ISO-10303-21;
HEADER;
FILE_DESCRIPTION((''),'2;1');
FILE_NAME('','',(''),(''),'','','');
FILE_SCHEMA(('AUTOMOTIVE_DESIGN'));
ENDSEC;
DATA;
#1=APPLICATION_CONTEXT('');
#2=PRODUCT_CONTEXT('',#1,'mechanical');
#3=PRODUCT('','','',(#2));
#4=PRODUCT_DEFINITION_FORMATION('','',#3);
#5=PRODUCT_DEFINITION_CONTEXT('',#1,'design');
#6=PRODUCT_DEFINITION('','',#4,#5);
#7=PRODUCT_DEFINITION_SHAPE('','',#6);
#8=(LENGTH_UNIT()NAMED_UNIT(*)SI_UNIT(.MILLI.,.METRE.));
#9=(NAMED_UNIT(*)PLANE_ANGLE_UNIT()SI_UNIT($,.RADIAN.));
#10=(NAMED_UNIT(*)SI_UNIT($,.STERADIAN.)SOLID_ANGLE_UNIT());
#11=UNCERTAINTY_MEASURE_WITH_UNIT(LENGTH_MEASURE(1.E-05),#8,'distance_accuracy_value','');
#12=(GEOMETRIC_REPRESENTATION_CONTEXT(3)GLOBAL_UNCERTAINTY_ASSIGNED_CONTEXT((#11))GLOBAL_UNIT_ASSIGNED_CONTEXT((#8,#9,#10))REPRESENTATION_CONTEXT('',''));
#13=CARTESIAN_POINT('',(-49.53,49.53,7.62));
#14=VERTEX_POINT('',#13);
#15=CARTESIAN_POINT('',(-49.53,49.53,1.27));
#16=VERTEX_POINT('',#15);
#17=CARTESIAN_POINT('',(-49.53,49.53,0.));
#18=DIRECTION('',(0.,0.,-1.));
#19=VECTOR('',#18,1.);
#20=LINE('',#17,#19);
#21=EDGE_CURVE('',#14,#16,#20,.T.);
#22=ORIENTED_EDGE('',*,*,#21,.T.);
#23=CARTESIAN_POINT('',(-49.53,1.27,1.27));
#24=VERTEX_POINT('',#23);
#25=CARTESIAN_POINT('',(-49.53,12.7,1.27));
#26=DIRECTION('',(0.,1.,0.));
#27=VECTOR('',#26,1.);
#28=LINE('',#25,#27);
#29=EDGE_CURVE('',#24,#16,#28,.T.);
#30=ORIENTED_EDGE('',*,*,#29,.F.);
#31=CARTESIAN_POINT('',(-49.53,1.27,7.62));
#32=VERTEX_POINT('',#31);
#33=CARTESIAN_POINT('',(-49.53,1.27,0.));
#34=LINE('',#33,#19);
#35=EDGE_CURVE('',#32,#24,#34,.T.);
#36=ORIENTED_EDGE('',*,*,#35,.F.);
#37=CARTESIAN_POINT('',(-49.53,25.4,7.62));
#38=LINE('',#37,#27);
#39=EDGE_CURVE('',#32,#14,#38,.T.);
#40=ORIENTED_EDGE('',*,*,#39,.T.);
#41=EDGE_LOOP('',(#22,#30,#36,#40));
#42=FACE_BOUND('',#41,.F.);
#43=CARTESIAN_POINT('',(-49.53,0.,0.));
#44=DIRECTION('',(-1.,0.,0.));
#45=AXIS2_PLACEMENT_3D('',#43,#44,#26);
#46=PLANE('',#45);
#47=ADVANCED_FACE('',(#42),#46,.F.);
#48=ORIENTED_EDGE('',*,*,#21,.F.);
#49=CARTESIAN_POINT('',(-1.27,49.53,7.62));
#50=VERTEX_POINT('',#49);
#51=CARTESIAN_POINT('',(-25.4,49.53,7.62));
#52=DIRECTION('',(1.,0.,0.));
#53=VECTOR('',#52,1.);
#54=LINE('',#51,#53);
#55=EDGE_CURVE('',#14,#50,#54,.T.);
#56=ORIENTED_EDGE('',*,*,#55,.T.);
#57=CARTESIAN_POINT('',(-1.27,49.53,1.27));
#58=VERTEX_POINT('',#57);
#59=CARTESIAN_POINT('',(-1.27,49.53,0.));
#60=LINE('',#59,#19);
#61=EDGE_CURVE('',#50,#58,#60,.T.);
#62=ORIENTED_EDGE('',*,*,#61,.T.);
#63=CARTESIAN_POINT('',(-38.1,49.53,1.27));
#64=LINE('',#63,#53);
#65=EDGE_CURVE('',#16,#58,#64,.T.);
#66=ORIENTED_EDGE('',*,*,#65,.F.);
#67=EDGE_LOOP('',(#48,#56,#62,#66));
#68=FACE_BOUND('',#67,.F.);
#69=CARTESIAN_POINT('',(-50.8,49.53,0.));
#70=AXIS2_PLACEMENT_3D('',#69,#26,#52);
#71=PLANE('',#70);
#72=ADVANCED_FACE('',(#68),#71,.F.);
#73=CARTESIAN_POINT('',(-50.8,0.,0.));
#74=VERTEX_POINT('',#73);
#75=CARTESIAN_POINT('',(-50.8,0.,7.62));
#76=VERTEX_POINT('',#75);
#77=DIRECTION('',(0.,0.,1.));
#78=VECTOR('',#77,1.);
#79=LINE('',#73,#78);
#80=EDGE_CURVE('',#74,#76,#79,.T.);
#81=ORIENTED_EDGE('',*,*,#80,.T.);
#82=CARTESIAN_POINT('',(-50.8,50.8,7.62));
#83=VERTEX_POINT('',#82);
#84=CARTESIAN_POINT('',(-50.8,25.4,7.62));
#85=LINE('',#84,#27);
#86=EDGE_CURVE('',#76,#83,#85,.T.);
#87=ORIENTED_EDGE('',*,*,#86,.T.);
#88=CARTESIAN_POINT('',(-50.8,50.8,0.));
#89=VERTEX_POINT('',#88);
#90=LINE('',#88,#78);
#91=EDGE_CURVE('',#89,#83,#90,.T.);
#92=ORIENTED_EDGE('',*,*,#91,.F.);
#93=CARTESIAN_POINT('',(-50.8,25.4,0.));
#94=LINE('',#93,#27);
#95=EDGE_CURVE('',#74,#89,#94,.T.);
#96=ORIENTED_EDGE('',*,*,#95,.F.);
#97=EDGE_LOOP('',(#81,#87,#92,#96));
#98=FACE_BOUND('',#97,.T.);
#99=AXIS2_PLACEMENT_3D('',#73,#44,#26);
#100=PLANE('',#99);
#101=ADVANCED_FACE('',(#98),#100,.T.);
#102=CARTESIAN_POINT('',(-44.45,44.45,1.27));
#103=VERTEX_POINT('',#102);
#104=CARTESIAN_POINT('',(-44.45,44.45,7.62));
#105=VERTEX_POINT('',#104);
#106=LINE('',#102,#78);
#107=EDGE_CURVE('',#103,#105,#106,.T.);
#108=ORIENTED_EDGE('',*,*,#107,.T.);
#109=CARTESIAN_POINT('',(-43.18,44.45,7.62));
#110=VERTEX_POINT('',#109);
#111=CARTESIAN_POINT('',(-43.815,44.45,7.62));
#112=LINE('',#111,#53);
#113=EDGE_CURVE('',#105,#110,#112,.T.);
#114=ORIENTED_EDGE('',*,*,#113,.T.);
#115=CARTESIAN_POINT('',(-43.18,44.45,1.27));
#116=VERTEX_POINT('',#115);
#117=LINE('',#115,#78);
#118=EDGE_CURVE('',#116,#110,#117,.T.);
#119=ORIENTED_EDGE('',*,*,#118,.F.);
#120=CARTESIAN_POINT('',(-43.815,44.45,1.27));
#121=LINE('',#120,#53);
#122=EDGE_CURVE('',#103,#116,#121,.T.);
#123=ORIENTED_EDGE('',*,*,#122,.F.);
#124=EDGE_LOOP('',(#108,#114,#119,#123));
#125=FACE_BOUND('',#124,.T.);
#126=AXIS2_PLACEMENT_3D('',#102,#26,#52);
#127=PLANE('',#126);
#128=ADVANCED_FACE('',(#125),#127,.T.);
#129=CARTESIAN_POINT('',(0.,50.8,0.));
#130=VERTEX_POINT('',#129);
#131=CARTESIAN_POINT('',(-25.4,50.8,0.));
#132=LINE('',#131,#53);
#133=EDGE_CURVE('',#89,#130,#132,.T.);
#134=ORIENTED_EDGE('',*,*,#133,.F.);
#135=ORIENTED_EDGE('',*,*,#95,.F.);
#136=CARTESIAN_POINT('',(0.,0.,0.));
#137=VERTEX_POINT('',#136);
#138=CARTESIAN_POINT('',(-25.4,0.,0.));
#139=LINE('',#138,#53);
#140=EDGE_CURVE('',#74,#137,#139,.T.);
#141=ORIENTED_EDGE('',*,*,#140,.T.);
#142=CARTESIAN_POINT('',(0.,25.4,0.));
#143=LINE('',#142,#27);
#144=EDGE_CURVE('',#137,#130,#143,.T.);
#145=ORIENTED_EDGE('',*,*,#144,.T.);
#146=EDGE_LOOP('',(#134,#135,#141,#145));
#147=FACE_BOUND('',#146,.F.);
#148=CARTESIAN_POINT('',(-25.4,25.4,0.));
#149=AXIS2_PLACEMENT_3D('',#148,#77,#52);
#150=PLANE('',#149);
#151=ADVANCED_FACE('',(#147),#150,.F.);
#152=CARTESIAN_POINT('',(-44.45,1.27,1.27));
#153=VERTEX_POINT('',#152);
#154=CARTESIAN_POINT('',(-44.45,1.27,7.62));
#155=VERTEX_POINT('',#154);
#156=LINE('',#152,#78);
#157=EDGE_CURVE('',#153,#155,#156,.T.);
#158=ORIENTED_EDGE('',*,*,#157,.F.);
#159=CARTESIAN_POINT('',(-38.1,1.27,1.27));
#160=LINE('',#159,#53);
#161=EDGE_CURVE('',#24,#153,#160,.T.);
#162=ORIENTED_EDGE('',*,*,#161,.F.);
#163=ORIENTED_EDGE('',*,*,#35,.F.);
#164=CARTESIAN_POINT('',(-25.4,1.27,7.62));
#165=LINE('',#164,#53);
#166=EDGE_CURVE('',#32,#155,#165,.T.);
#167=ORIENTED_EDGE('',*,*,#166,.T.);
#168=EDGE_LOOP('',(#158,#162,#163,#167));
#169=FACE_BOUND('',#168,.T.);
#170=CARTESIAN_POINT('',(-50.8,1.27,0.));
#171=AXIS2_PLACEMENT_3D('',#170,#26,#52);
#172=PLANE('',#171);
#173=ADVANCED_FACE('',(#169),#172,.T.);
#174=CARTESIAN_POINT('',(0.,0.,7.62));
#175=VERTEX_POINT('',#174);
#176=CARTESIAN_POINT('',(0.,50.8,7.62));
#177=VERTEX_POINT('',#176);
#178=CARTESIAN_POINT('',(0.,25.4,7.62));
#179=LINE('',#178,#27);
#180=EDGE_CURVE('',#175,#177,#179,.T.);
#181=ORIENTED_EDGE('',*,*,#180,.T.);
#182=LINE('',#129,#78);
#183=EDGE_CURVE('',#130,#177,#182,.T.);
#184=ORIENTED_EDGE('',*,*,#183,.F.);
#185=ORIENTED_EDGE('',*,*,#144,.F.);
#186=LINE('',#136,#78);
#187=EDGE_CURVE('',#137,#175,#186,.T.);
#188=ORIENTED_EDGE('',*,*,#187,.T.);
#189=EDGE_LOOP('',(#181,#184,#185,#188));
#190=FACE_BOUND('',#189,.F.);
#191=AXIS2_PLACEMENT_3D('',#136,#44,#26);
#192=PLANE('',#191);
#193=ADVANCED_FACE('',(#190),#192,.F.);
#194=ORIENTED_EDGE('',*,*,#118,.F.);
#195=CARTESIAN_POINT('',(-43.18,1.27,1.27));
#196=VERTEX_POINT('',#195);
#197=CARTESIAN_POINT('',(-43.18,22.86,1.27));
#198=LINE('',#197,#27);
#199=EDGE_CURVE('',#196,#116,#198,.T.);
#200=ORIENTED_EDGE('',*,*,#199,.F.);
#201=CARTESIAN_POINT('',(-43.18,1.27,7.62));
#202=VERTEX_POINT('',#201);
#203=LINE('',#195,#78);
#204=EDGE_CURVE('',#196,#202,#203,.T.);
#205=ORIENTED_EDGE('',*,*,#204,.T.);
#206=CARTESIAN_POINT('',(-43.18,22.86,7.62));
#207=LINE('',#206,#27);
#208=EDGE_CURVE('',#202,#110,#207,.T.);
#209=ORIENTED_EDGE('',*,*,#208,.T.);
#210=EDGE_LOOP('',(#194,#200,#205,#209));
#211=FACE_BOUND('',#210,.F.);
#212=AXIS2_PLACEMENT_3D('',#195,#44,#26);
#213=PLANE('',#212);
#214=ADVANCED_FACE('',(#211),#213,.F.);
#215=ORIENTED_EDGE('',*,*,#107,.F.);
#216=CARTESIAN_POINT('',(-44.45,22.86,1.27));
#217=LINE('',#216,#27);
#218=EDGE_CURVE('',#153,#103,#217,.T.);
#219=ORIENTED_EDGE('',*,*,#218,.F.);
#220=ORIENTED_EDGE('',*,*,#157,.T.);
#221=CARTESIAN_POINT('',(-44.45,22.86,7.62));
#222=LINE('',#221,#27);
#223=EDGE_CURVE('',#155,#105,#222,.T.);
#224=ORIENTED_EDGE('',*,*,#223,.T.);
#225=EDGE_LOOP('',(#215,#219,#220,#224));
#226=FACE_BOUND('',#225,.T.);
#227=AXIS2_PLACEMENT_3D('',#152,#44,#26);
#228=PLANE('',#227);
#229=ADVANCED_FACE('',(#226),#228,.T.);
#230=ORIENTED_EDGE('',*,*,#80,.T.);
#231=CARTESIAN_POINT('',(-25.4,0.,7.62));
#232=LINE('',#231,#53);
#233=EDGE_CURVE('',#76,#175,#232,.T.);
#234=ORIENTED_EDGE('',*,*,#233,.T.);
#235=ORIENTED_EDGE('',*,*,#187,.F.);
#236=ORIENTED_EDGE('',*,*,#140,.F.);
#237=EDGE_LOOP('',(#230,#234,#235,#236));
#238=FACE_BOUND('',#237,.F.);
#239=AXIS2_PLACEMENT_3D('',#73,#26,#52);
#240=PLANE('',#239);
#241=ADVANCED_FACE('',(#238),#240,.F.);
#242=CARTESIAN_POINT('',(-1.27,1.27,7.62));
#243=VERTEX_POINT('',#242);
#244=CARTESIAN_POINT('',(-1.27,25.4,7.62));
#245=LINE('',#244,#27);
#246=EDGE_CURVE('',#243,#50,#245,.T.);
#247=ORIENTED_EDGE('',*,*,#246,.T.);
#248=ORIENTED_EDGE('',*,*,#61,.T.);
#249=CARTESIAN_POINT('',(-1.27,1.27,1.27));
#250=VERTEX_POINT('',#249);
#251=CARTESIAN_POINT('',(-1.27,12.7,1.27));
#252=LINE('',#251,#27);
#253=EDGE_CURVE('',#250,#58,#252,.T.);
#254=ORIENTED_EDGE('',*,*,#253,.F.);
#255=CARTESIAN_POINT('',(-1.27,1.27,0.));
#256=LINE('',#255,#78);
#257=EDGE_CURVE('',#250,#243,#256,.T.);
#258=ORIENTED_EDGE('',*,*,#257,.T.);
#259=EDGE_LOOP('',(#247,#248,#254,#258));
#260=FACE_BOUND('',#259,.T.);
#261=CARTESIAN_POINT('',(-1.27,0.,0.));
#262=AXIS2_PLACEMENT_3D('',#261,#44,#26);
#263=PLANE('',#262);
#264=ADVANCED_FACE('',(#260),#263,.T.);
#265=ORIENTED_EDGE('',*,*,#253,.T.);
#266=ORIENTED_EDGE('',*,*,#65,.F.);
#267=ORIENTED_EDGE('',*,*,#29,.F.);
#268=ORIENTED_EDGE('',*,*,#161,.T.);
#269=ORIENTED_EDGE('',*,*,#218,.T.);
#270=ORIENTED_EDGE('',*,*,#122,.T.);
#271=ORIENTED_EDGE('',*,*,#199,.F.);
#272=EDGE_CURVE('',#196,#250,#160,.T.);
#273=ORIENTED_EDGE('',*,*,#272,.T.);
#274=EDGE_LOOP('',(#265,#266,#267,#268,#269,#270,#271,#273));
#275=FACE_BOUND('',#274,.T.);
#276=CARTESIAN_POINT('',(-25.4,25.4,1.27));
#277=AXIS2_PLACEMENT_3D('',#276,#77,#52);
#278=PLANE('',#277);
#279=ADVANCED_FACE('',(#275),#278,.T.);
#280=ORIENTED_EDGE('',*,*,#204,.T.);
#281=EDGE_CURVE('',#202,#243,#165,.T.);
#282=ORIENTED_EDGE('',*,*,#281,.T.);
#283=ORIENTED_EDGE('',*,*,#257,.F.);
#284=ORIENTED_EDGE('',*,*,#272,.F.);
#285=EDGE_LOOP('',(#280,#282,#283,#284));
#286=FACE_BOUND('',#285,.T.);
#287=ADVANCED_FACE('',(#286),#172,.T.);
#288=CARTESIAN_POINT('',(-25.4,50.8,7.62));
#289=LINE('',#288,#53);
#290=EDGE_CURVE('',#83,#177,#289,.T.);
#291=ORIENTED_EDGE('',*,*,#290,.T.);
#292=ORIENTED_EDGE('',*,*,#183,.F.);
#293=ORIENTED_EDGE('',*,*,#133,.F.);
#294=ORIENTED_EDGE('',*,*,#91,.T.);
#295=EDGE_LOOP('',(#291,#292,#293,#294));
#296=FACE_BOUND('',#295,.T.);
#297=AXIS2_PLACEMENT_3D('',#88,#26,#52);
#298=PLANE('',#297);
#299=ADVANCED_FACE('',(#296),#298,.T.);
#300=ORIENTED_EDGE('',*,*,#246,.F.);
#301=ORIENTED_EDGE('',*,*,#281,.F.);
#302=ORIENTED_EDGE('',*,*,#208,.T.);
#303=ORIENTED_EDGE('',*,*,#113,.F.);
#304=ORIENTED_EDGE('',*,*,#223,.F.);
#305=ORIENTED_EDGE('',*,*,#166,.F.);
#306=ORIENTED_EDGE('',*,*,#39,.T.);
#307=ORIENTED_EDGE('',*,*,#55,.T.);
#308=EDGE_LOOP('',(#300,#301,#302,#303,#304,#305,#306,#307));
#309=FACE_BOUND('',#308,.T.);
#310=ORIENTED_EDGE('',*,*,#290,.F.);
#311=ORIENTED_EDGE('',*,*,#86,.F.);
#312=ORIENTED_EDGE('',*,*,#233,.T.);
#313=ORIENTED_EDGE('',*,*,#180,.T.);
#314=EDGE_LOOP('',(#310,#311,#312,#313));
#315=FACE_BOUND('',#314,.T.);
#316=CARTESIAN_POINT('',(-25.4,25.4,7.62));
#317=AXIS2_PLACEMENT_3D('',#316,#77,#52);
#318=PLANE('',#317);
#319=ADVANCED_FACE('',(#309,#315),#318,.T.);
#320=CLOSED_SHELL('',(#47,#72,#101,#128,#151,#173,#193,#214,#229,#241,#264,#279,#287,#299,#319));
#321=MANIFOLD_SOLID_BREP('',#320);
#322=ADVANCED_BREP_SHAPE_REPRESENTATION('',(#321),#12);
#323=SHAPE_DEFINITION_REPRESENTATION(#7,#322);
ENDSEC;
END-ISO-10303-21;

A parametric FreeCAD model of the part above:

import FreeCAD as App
import Part
import Sketcher
from FreeCAD import Vector
Q = App.Units.Quantity


def faces_at(feature, points):
    """Names of the faces that lie closest to the given points."""
    faces = feature.Shape.Faces
    near = lambda p: min(range(len(faces)), key=lambda i: faces[i].distToShape(Part.Vertex(*p))[0])
    return sorted({f"Face{near(p) + 1}" for p in points})


def add_polygon(sketch, points):
    """Adds a closed chain of lines whose ends are joined by coincident constraints."""
    first, n = sketch.GeometryCount, len(points)
    for a, b in zip(points, points[1:] + points[:1]):
        sketch.addGeometry(Part.LineSegment(App.Vector(*a, 0), App.Vector(*b, 0)), False)
    for i in range(n):
        sketch.addConstraint(Sketcher.Constraint("Coincident", first + i, 2, first + (i + 1) % n, 1))

doc = App.newDocument("Part")
params = doc.addObject("Spreadsheet::Sheet", "Params")
for row, (alias, value) in enumerate([
    ("sketch1_width", "2 in"),
    ("pad1_length", "0.3 in"),
    ("thickness_wall", "0.05 in"),
    ("sketch2_height", "1.7 in"),
    ("sketch2_width", "0.05 in"),
    ("pad2_length", "0.25 in"),
], start=1):
    params.set(f"A{row}", alias)
    params.set(f"B{row}", "=" + value)
    params.setAlias(f"B{row}", alias)

body = doc.addObject("PartDesign::Body", "Body")

# Sketch on XY plane
sketch1 = body.newObject("Sketcher::SketchObject", "Sketch")
sketch1.AttachmentSupport = (doc.getObject("XY_Plane"), [""])
sketch1.MapMode = "FlatFace"
add_polygon(sketch1, [(-50.8, 50.8), (-50.8, 0), (0, 0), (0, 50.8)])  # lines 0-3
sketch1.addConstraint([
    Sketcher.Constraint("Vertical", 0),
    Sketcher.Constraint("Horizontal", 1),
    Sketcher.Constraint("Vertical", 2),
    Sketcher.Constraint("Horizontal", 3),
    Sketcher.Constraint("Coincident", 1, 2, -1, 1),
    Sketcher.Constraint("Equal", 3, 0),
    Sketcher.Constraint("DistanceX", 1, 1, 1, 2, Q("2 in")),
])
sketch1.setExpression("Constraints[10]", "Params.sketch1_width")
pad1 = body.newObject("PartDesign::Pad", "Pad")
pad1.Profile = sketch1
pad1.setExpression("Length", "Params.pad1_length")
doc.recompute()

thickness = body.newObject("PartDesign::Thickness", "Thickness")
thickness.Base = (pad1, faces_at(pad1, [(-25.4, 25.4, 7.62)]))
thickness.setExpression("Value", "Params.thickness_wall")
thickness.Reversed = True
thickness.Join = "Arc"

# Sketch on XY plane
sketch2 = body.newObject("Sketcher::SketchObject", "Sketch001")
sketch2.AttachmentSupport = (doc.getObject("XY_Plane"), [""])
sketch2.MapMode = "FlatFace"
sketch2.AttachmentOffset = App.Placement(Vector(0, 0, 0.05 * 25.4), App.Rotation())
add_polygon(sketch2, [(-44.45, 44.45), (-44.45, 1.27), (-43.18, 1.27), (-43.18, 44.45)])  # lines 0-3
sketch2.addConstraint([
    Sketcher.Constraint("Vertical", 0),
    Sketcher.Constraint("Horizontal", 1),
    Sketcher.Constraint("Vertical", 2),
    Sketcher.Constraint("Horizontal", 3),
    Sketcher.Constraint("DistanceY", 0, 2, 0, 1, Q("1.7 in")),
    Sketcher.Constraint("DistanceX", 1, 1, 1, 2, Q("0.05 in")),
    Sketcher.Constraint("DistanceX", 1, 2, -1, 1, Q("1.7 in")),
    Sketcher.Constraint("DistanceY", -1, 1, 0, 2, Q("0.05 in")),
])
sketch2.setExpression("Constraints[8]", "Params.sketch2_height")
sketch2.setExpression("Constraints[9]", "Params.sketch2_width")
pad2 = body.newObject("PartDesign::Pad", "Pad001")
pad2.Profile = sketch2
pad2.setExpression("Length", "Params.pad2_length")

doc.recompute()
